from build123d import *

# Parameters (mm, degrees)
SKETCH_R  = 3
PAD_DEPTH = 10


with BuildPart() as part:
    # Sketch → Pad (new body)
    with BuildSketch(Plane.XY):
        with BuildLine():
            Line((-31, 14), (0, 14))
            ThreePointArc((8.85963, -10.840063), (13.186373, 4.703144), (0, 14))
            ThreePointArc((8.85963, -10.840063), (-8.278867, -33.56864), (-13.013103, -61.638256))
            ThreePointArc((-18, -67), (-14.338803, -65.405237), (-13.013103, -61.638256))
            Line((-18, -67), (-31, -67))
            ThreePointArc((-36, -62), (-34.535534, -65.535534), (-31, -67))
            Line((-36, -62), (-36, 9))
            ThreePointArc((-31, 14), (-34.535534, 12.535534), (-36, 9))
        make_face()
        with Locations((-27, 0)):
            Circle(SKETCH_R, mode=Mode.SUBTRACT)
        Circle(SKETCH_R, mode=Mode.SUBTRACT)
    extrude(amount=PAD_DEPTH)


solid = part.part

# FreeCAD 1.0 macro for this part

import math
import FreeCAD as App
import Part
import Sketcher

V = App.Vector

doc = App.newDocument("Part")
body = doc.addObject("PartDesign::Body", "Body")

sketch1 = body.newObject("Sketcher::SketchObject", "Sketch")
sketch1.AttachmentSupport = (doc.getObject("XY_Plane"), [""])
sketch1.MapMode = "FlatFace"
sketch1.addGeometry(Part.LineSegment(V(0, 14, 0), V(-31, 14, 0)), False)
sketch1.addGeometry(Part.ArcOfCircle(Part.Circle(V(-31, 9, 0), V(0, 0, 1), 5), math.radians(89.999996), math.radians(180.000004)), False)
sketch1.addGeometry(Part.LineSegment(V(-36, 9, 0), V(-36, -62, 0)), False)
sketch1.addGeometry(Part.ArcOfCircle(Part.Circle(V(-31, -62, 0), V(0, 0, 1), 5), math.radians(179.999996), math.radians(270.000004)), False)
sketch1.addGeometry(Part.LineSegment(V(-31, -67, 0), V(-18, -67, 0)), False)
sketch1.addGeometry(Part.ArcOfCircle(Part.Circle(V(-17.999999, -62, 0), V(0, 0, 1), 5), math.radians(-90.000006), math.radians(4.148912)), False)
sketch1.addGeometry(Part.ArcOfCircle(Part.Circle(V(46.829657, -57.29732, 0), V(0, 0, 1), 59.999997), math.radians(129.259507), math.radians(184.148914)), False)
sketch1.addGeometry(Part.ArcOfCircle(Part.Circle(V(0, 0, 0), V(0, 0, 1), 14), math.radians(-50.740721), math.radians(89.999999)), False)
sketch1.addGeometry(Part.Circle(V(0, 0, 0), V(0, 0, 1), 3), False)
sketch1.addGeometry(Part.Circle(V(-27, 0, 0), V(0, 0, 1), 3), False)
sketch1.addConstraint(Sketcher.Constraint("Tangent", 0, 2, 1, 1))
sketch1.addConstraint(Sketcher.Constraint("Tangent", 1, 2, 2, 1))
sketch1.addConstraint(Sketcher.Constraint("Tangent", 2, 2, 3, 1))
sketch1.addConstraint(Sketcher.Constraint("Tangent", 3, 2, 4, 1))
sketch1.addConstraint(Sketcher.Constraint("Tangent", 4, 2, 5, 1))
sketch1.addConstraint(Sketcher.Constraint("Tangent", 5, 2, 6, 2))
sketch1.addConstraint(Sketcher.Constraint("Coincident", 6, 1, 7, 1))
sketch1.addConstraint(Sketcher.Constraint("Tangent", 7, 2, 0, 1))
sketch1.addConstraint(Sketcher.Constraint("Horizontal", 0))
sketch1.addConstraint(Sketcher.Constraint("Vertical", 2))
sketch1.addConstraint(Sketcher.Constraint("Horizontal", 4))
sketch1.addConstraint(Sketcher.Constraint("Coincident", 7, 3, -1, 1))
sketch1.addConstraint(Sketcher.Constraint("Coincident", 8, 3, -1, 1))
sketch1.addConstraint(Sketcher.Constraint("Equal", 1, 3))
sketch1.addConstraint(Sketcher.Constraint("Equal", 3, 5))
sketch1.addConstraint(Sketcher.Constraint("Equal", 8, 9))
sketch1.addConstraint(Sketcher.Constraint("PointOnObject", 9, 3, -1))
sketch1.addConstraint(Sketcher.Constraint("Diameter", 8, 6.0))
sketch1.addConstraint(Sketcher.Constraint("Radius", 1, 5.0))
sketch1.addConstraint(Sketcher.Constraint("Radius", 7, 14.0))
sketch1.addConstraint(Sketcher.Constraint("DistanceX", 0, 2, 0, 1, 31.0))
sketch1.addConstraint(Sketcher.Constraint("DistanceX", 4, 1, 4, 2, 13.0))
sketch1.addConstraint(Sketcher.Constraint("DistanceY", 2, 2, 2, 1, 71.0))
sketch1.addConstraint(Sketcher.Constraint("DistanceX", 9, 3, -1, 1, 27.0))
sketch1.addConstraint(Sketcher.Constraint("Radius", 6, 59.999997))
sketch1.addConstraint(Sketcher.Constraint("DistanceX", -1, 1, 6, 1, 8.85963))
pad1 = body.newObject("PartDesign::Pad", "Pad")
pad1.Profile = sketch1
pad1.Length = 10

doc.recompute()
